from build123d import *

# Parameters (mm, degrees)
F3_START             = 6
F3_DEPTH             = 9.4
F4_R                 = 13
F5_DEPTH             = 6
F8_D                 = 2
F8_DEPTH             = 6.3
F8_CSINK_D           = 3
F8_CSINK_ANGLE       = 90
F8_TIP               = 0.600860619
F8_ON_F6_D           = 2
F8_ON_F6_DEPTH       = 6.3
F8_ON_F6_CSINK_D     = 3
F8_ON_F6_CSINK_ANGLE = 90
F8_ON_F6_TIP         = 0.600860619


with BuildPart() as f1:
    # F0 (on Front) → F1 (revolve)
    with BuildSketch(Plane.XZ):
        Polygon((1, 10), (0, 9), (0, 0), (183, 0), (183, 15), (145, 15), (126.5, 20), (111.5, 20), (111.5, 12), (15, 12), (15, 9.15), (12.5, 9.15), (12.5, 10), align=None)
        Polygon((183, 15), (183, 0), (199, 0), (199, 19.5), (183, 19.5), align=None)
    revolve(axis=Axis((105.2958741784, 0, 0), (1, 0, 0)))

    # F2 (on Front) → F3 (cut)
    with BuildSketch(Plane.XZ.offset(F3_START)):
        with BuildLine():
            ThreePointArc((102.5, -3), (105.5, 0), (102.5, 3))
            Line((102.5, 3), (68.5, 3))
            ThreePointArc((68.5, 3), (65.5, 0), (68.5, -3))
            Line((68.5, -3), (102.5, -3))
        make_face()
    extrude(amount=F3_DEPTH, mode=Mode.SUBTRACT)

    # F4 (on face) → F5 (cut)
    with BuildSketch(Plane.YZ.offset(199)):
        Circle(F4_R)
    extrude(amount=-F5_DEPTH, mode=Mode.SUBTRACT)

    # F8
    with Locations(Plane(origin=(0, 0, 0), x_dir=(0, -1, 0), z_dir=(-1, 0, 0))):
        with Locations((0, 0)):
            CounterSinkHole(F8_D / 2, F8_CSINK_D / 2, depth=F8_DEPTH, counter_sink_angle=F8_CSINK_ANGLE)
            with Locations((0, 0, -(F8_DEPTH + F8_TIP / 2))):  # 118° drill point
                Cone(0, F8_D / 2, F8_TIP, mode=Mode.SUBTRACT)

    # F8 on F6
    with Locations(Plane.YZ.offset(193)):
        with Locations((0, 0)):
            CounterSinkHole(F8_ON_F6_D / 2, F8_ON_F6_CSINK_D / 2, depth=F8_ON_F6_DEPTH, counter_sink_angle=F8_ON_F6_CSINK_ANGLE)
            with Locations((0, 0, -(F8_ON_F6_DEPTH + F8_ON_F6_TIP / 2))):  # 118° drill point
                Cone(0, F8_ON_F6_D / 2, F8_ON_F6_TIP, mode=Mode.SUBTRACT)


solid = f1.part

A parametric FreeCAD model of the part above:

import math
import FreeCAD as App
import Part
import Sketcher
Q = App.Units.Quantity

doc = App.newDocument("Part")
body = doc.addObject("PartDesign::Body", "Body")

sketch1 = doc.addObject("Sketcher::SketchObject", "Sketch")
body.addObject(sketch1)
sketch1.AttachmentSupport = (doc.XZ_Plane, [""])
sketch1.MapMode = "FlatFace"
sketch1.addGeometry([
    Part.LineSegment(App.Vector(1, 10, 0), App.Vector(0, 9, 0)),
    Part.LineSegment(App.Vector(0, 9, 0), App.Vector(0, 0, 0)),
    Part.LineSegment(App.Vector(0, 0, 0), App.Vector(199, 0, 0)),
    Part.LineSegment(App.Vector(199, 0, 0), App.Vector(199, 19.5, 0)),
    Part.LineSegment(App.Vector(199, 19.5, 0), App.Vector(183, 19.5, 0)),
    Part.LineSegment(App.Vector(183, 19.5, 0), App.Vector(183, 15, 0)),
    Part.LineSegment(App.Vector(183, 15, 0), App.Vector(145, 15, 0)),
    Part.LineSegment(App.Vector(145, 15, 0), App.Vector(126.5, 20, 0)),
    Part.LineSegment(App.Vector(126.5, 20, 0), App.Vector(111.5, 20, 0)),
    Part.LineSegment(App.Vector(111.5, 20, 0), App.Vector(111.5, 12, 0)),
    Part.LineSegment(App.Vector(111.5, 12, 0), App.Vector(15, 12, 0)),
    Part.LineSegment(App.Vector(15, 12, 0), App.Vector(15, 9.15, 0)),
    Part.LineSegment(App.Vector(15, 9.15, 0), App.Vector(12.5, 9.15, 0)),
    Part.LineSegment(App.Vector(12.5, 9.15, 0), App.Vector(12.5, 10, 0)),
    Part.LineSegment(App.Vector(12.5, 10, 0), App.Vector(1, 10, 0)),
], False)
sketch1.addConstraint([
    Sketcher.Constraint("Coincident", 0, 2, 1, 1),
    Sketcher.Constraint("Coincident", 1, 2, 2, 1),
    Sketcher.Constraint("Coincident", 2, 2, 3, 1),
    Sketcher.Constraint("Coincident", 3, 2, 4, 1),
    Sketcher.Constraint("Coincident", 4, 2, 5, 1),
    Sketcher.Constraint("Coincident", 5, 2, 6, 1),
    Sketcher.Constraint("Coincident", 6, 2, 7, 1),
    Sketcher.Constraint("Coincident", 7, 2, 8, 1),
    Sketcher.Constraint("Coincident", 8, 2, 9, 1),
    Sketcher.Constraint("Coincident", 9, 2, 10, 1),
    Sketcher.Constraint("Coincident", 10, 2, 11, 1),
    Sketcher.Constraint("Coincident", 11, 2, 12, 1),
    Sketcher.Constraint("Coincident", 12, 2, 13, 1),
    Sketcher.Constraint("Coincident", 13, 2, 14, 1),
    Sketcher.Constraint("Coincident", 14, 2, 0, 1),
    Sketcher.Constraint("Vertical", 1),
    Sketcher.Constraint("Horizontal", 2),
    Sketcher.Constraint("Vertical", 3),
    Sketcher.Constraint("Horizontal", 4),
    Sketcher.Constraint("Vertical", 5),
    Sketcher.Constraint("Horizontal", 6),
    Sketcher.Constraint("Horizontal", 8),
    Sketcher.Constraint("Vertical", 9),
    Sketcher.Constraint("Horizontal", 10),
    Sketcher.Constraint("Vertical", 11),
    Sketcher.Constraint("Horizontal", 12),
    Sketcher.Constraint("Vertical", 13),
    Sketcher.Constraint("Horizontal", 14),
    Sketcher.Constraint("Coincident", 1, 2, -1, 1),
    Sketcher.Constraint("DistanceX", 2, 1, 2, 2, Q("199 mm")),
    Sketcher.Constraint("DistanceX", 4, 2, 4, 1, Q("16 mm")),
    Sketcher.Constraint("DistanceX", 6, 2, 6, 1, Q("38 mm")),
    Sketcher.Constraint("DistanceX", 8, 2, 8, 1, Q("15 mm")),
    Sketcher.Constraint("DistanceY", 1, 2, 1, 1, Q("9 mm")),
    Sketcher.Constraint("DistanceY", 9, 2, 9, 1, Q("8 mm")),
    Sketcher.Constraint("Angle", 0, Q("-135 deg")),
    Sketcher.Constraint("DistanceX", 10, 2, 10, 1, Q("96.5 mm")),
    Sketcher.Constraint("DistanceX", 12, 2, 12, 1, Q("2.5 mm")),
    Sketcher.Constraint("DistanceX", 14, 2, 14, 1, Q("11.5 mm")),
    Sketcher.Constraint("DistanceY", 3, 1, 3, 2, Q("19.5 mm")),
    Sketcher.Constraint("DistanceY", 5, 2, 5, 1, Q("4.5 mm")),
    Sketcher.Constraint("DistanceY", -1, 1, 7, 2, Q("20 mm")),
    Sketcher.Constraint("DistanceX", -1, 1, 10, 2, Q("15 mm")),
    Sketcher.Constraint("DistanceY", 11, 2, 11, 1, Q("2.85 mm")),
])
revolution = doc.addObject("PartDesign::Revolution", "Revolution")
body.addObject(revolution)
revolution.Profile = sketch1
revolution.ReferenceAxis = (sketch1, ["H_Axis"])
revolution.Angle = 360

sketch2 = doc.addObject("Sketcher::SketchObject", "Sketch001")
body.addObject(sketch2)
sketch2.AttachmentSupport = (doc.XZ_Plane, [""])
sketch2.MapMode = "FlatFace"
sketch2.AttachmentOffset = App.Placement(App.Vector(0, 0, 6), App.Rotation())
sketch2.addGeometry([
    Part.ArcOfCircle(Part.Circle(App.Vector(102.5, 0, 0), App.Vector(0, 0, 1), 3), math.radians(-90), math.radians(90)),
    Part.LineSegment(App.Vector(102.5, 3, 0), App.Vector(68.5, 3, 0)),
    Part.ArcOfCircle(Part.Circle(App.Vector(68.5, 0, 0), App.Vector(0, 0, 1), 3), math.radians(90), math.radians(270)),
    Part.LineSegment(App.Vector(68.5, -3, 0), App.Vector(102.5, -3, 0)),
], False)
sketch2.addConstraint([
    Sketcher.Constraint("Tangent", 0, 2, 1, 1),
    Sketcher.Constraint("Tangent", 1, 2, 2, 1),
    Sketcher.Constraint("Tangent", 2, 2, 3, 1),
    Sketcher.Constraint("Tangent", 3, 2, 0, 1),
    Sketcher.Constraint("Horizontal", 1),
    Sketcher.Constraint("Horizontal", 3),
    Sketcher.Constraint("PointOnObject", 0, 3, -1),
    Sketcher.Constraint("Radius", 0, Q("3 mm")),
    Sketcher.Constraint("DistanceX", 1, 2, 1, 1, Q("34 mm")),
    Sketcher.Constraint("DistanceX", -1, 1, 0, 3, Q("102.5 mm")),
])
pocket1 = doc.addObject("PartDesign::Pocket", "Pocket")
body.addObject(pocket1)
pocket1.Profile = sketch2
pocket1.Length = 9.4
pocket1.Reversed = True

sketch3 = doc.addObject("Sketcher::SketchObject", "Sketch002")
body.addObject(sketch3)
sketch3.AttachmentSupport = (doc.YZ_Plane, [""])
sketch3.MapMode = "FlatFace"
sketch3.AttachmentOffset = App.Placement(App.Vector(0, 0, 199), App.Rotation())
sketch3.addGeometry(Part.Circle(App.Vector(0, 0, 0), App.Vector(0, 0, 1), 13), False)
sketch3.addConstraint([
    Sketcher.Constraint("Coincident", 0, 3, -1, 1),
    Sketcher.Constraint("Diameter", 0, Q("26 mm")),
])
pocket2 = doc.addObject("PartDesign::Pocket", "Pocket001")
body.addObject(pocket2)
pocket2.Profile = sketch3
pocket2.Length = 6

sketch4 = doc.addObject("Sketcher::SketchObject", "Sketch003")
body.addObject(sketch4)
sketch4.AttachmentSupport = (doc.YZ_Plane, [""])
sketch4.MapMode = "FlatFace"
sketch4.addGeometry(Part.Circle(App.Vector(0, 0, 0), App.Vector(0, 0, 1), 1), False)
sketch4.addConstraint([
    Sketcher.Constraint("Coincident", 0, 3, -1, 1),
    Sketcher.Constraint("Diameter", 0, Q("2 mm")),
])
doc.recompute()
hole = doc.addObject("PartDesign::Hole", "Hole")
body.addObject(hole)
hole.Profile = sketch4
hole.ThreadType = "None"
hole.Diameter = 2
hole.DepthType = "Dimension"
hole.Depth = 6.3
hole.DrillPoint = "Angled"
hole.DrillPointAngle = 118
hole.HoleCutType = "Countersink"
hole.HoleCutDiameter = 3
hole.HoleCutCountersinkAngle = 90
hole.Reversed = True

sketch5 = doc.addObject("Sketcher::SketchObject", "Sketch004")
body.addObject(sketch5)
sketch5.AttachmentSupport = (doc.YZ_Plane, [""])
sketch5.MapMode = "FlatFace"
sketch5.AttachmentOffset = App.Placement(App.Vector(0, 0, 193), App.Rotation())
sketch5.addGeometry(Part.Circle(App.Vector(0, 0, 0), App.Vector(0, 0, 1), 1), False)
sketch5.addConstraint([
    Sketcher.Constraint("Coincident", 0, 3, -1, 1),
    Sketcher.Constraint("Diameter", 0, Q("2 mm")),
])
doc.recompute()
hole2 = doc.addObject("PartDesign::Hole", "Hole001")
body.addObject(hole2)
hole2.Profile = sketch5
hole2.ThreadType = "None"
hole2.Diameter = 2
hole2.DepthType = "Dimension"
hole2.Depth = 6.3
hole2.DrillPoint = "Angled"
hole2.DrillPointAngle = 118
hole2.HoleCutType = "Countersink"
hole2.HoleCutDiameter = 3
hole2.HoleCutCountersinkAngle = 90

doc.recompute()
